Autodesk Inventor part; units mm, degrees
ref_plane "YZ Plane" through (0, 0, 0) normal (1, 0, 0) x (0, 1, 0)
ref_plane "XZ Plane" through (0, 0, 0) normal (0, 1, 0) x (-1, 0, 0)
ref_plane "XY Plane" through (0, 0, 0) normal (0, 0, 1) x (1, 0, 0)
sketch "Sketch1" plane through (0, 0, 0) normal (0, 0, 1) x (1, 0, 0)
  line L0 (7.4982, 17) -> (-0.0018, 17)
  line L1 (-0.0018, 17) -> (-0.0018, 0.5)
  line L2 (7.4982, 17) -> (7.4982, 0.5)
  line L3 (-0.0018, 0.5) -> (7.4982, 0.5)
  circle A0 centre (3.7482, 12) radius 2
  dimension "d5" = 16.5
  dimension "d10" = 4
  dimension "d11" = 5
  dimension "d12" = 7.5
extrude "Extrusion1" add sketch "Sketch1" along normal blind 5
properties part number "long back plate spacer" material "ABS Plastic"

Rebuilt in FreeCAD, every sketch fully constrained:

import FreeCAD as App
import Part
import Sketcher
Q = App.Units.Quantity

doc = App.newDocument("Part")
params = doc.addObject("Spreadsheet::Sheet", "Params")
for row, (alias, value) in enumerate([
    ("sketch1_diameter", "4 mm"),
    ("sketch1_width", "7.5 mm"),
    ("sketch1_height", "16.5 mm"),
    ("pad1_length", "5 mm"),
], start=1):
    params.set(f"A{row}", alias)
    params.set(f"B{row}", "=" + value)
    params.setAlias(f"B{row}", alias)

body = doc.addObject("PartDesign::Body", "Body")

# Sketch on XY plane
sketch1 = body.newObject("Sketcher::SketchObject", "Sketch")
sketch1.AttachmentSupport = (doc.getObject("XY_Plane"), [""])
sketch1.MapMode = "FlatFace"
sketch1.addGeometry([
    Part.LineSegment(App.Vector(7.4982, 0.5, 0), App.Vector(7.4982, 17, 0)),  # 0
    Part.LineSegment(App.Vector(7.4982, 17, 0), App.Vector(-0.0018, 17, 0)),  # 1
    Part.LineSegment(App.Vector(-0.0018, 17, 0), App.Vector(-0.0018, 0.5, 0)),  # 2
    Part.LineSegment(App.Vector(-0.0018, 0.5, 0), App.Vector(7.4982, 0.5, 0)),  # 3
    Part.Circle(App.Vector(3.7482, 12, 0), App.Vector(0, 0, 1), 2),  # 4
], False)
sketch1.addConstraint([
    Sketcher.Constraint("Coincident", 0, 2, 1, 1),
    Sketcher.Constraint("Coincident", 1, 2, 2, 1),
    Sketcher.Constraint("Coincident", 2, 2, 3, 1),
    Sketcher.Constraint("Coincident", 3, 2, 0, 1),
    Sketcher.Constraint("Vertical", 0),
    Sketcher.Constraint("Horizontal", 1),
    Sketcher.Constraint("Vertical", 2),
    Sketcher.Constraint("Horizontal", 3),
    Sketcher.Constraint("Diameter", 4, Q("4 mm")),
    Sketcher.Constraint("DistanceX", 1, 2, 1, 1, Q("7.5 mm")),
    Sketcher.Constraint("DistanceY", 0, 1, 0, 2, Q("16.5 mm")),
    Sketcher.Constraint("DistanceY", 4, 3, 0, 2, Q("5 mm")),
    Sketcher.Constraint("DistanceY", -1, 1, 4, 3, Q("12 mm")),
    Sketcher.Constraint("DistanceX", 4, 3, 0, 2, Q("3.75 mm")),
    Sketcher.Constraint("DistanceX", -1, 1, 4, 3, Q("3.7482 mm")),
])
sketch1.setExpression("Constraints[8]", "Params.sketch1_diameter")
sketch1.setExpression("Constraints[9]", "Params.sketch1_width")
sketch1.setExpression("Constraints[10]", "Params.sketch1_height")
pad1 = body.newObject("PartDesign::Pad", "Pad")
pad1.Profile = sketch1
pad1.setExpression("Length", "Params.pad1_length")

doc.recompute()
